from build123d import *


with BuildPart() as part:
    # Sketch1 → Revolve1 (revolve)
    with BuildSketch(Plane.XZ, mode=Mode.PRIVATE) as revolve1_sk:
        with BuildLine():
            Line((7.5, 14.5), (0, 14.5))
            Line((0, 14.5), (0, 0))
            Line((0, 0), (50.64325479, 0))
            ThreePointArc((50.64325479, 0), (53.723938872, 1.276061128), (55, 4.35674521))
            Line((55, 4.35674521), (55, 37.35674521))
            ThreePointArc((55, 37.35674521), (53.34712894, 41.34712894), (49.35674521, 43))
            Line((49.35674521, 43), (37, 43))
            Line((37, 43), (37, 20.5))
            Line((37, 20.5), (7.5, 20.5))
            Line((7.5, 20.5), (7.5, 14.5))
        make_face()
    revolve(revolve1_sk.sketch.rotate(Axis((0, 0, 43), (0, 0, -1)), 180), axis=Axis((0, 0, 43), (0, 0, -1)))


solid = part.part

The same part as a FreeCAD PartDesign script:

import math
import FreeCAD as App
import Part
import Sketcher

doc = App.newDocument("Part")
params = doc.addObject("Spreadsheet::Sheet", "Params")
for row, (alias, value) in enumerate([
    ("sketch1_height", "33 mm"),
    ("sketch1_height2", "6 mm"),
    ("sketch1_width", "7.5 mm"),
    ("sketch1_width2", "29.5 mm"),
    ("sketch1_height3", "14.5 mm"),
    ("revolution_angle", "360 deg"),
], start=1):
    params.set(f"A{row}", alias)
    params.set(f"B{row}", "=" + value)
    params.setAlias(f"B{row}", alias)

body = doc.addObject("PartDesign::Body", "Body")

# Sketch on XZ plane
sketch1 = doc.addObject("Sketcher::SketchObject", "Sketch")
body.addObject(sketch1)
sketch1.AttachmentSupport = (doc.XZ_Plane, [""])
sketch1.MapMode = "FlatFace"
sketch1.addGeometry(Part.LineSegment(App.Vector(7.5, 14.5, 0), App.Vector(0, 14.5, 0)), False)
sketch1.addGeometry(Part.LineSegment(App.Vector(0, 14.5, 0), App.Vector(0, 0, 0)), False)
sketch1.addGeometry(Part.LineSegment(App.Vector(0, 0, 0), App.Vector(50.6, 0, 0)), False)
sketch1.addGeometry(Part.ArcOfCircle(Part.Circle(App.Vector(50.6, 4.4, 0), App.Vector(0, 0, 1), 4.4), math.radians(-90), math.radians(0)), False)
sketch1.addGeometry(Part.LineSegment(App.Vector(55, 4.4, 0), App.Vector(55, 37.4, 0)), False)
sketch1.addGeometry(Part.ArcOfCircle(Part.Circle(App.Vector(49.4, 37.4, 0), App.Vector(0, 0, 1), 5.6), math.radians(0), math.radians(90)), False)
sketch1.addGeometry(Part.LineSegment(App.Vector(49.4, 43, 0), App.Vector(37, 43, 0)), False)
sketch1.addGeometry(Part.LineSegment(App.Vector(37, 43, 0), App.Vector(37, 20.5, 0)), False)
sketch1.addGeometry(Part.LineSegment(App.Vector(37, 20.5, 0), App.Vector(7.5, 20.5, 0)), False)
sketch1.addGeometry(Part.LineSegment(App.Vector(7.5, 20.5, 0), App.Vector(7.5, 14.5, 0)), False)
sketch1.addConstraint(Sketcher.Constraint("Coincident", 0, 2, 1, 1))
sketch1.addConstraint(Sketcher.Constraint("Coincident", 1, 2, 2, 1))
sketch1.addConstraint(Sketcher.Constraint("Tangent", 2, 2, 3, 1))
sketch1.addConstraint(Sketcher.Constraint("Tangent", 3, 2, 4, 1))
sketch1.addConstraint(Sketcher.Constraint("Tangent", 4, 2, 5, 1))
sketch1.addConstraint(Sketcher.Constraint("Tangent", 5, 2, 6, 1))
sketch1.addConstraint(Sketcher.Constraint("Coincident", 6, 2, 7, 1))
sketch1.addConstraint(Sketcher.Constraint("Coincident", 7, 2, 8, 1))
sketch1.addConstraint(Sketcher.Constraint("Coincident", 8, 2, 9, 1))
sketch1.addConstraint(Sketcher.Constraint("Coincident", 9, 2, 0, 1))
sketch1.addConstraint(Sketcher.Constraint("Horizontal", 0))
sketch1.addConstraint(Sketcher.Constraint("Vertical", 1))
sketch1.addConstraint(Sketcher.Constraint("Horizontal", 2))
sketch1.addConstraint(Sketcher.Constraint("Vertical", 4))
sketch1.addConstraint(Sketcher.Constraint("Horizontal", 6))
sketch1.addConstraint(Sketcher.Constraint("Vertical", 7))
sketch1.addConstraint(Sketcher.Constraint("Horizontal", 8))
sketch1.addConstraint(Sketcher.Constraint("Vertical", 9))
sketch1.addConstraint(Sketcher.Constraint("Coincident", 1, 2, -1, 1))
sketch1.addConstraint(Sketcher.Constraint("DistanceY", 4, 1, 4, 2, 33.0))
sketch1.addConstraint(Sketcher.Constraint("DistanceY", 9, 2, 9, 1, 6.0))
sketch1.addConstraint(Sketcher.Constraint("DistanceX", 0, 2, 0, 1, 7.5))
sketch1.addConstraint(Sketcher.Constraint("DistanceX", 8, 2, 8, 1, 29.5))
sketch1.addConstraint(Sketcher.Constraint("DistanceY", 1, 2, 1, 1, 14.5))
sketch1.addConstraint(Sketcher.Constraint("DistanceY", 7, 2, 7, 1, 22.5))
sketch1.addConstraint(Sketcher.Constraint("DistanceX", -1, 1, 3, 2, 55.0))
sketch1.addConstraint(Sketcher.Constraint("Radius", 3, 4.356745))
sketch1.setExpression("Constraints[19]", "Params.sketch1_height")
sketch1.setExpression("Constraints[20]", "Params.sketch1_height2")
sketch1.setExpression("Constraints[21]", "Params.sketch1_width")
sketch1.setExpression("Constraints[22]", "Params.sketch1_width2")
sketch1.setExpression("Constraints[23]", "Params.sketch1_height3")
revolution = doc.addObject("PartDesign::Revolution", "Revolution")
body.addObject(revolution)
revolution.Profile = sketch1
revolution.ReferenceAxis = (sketch1, ["V_Axis"])
revolution.setExpression("Angle", "Params.revolution_angle")

doc.recompute()
